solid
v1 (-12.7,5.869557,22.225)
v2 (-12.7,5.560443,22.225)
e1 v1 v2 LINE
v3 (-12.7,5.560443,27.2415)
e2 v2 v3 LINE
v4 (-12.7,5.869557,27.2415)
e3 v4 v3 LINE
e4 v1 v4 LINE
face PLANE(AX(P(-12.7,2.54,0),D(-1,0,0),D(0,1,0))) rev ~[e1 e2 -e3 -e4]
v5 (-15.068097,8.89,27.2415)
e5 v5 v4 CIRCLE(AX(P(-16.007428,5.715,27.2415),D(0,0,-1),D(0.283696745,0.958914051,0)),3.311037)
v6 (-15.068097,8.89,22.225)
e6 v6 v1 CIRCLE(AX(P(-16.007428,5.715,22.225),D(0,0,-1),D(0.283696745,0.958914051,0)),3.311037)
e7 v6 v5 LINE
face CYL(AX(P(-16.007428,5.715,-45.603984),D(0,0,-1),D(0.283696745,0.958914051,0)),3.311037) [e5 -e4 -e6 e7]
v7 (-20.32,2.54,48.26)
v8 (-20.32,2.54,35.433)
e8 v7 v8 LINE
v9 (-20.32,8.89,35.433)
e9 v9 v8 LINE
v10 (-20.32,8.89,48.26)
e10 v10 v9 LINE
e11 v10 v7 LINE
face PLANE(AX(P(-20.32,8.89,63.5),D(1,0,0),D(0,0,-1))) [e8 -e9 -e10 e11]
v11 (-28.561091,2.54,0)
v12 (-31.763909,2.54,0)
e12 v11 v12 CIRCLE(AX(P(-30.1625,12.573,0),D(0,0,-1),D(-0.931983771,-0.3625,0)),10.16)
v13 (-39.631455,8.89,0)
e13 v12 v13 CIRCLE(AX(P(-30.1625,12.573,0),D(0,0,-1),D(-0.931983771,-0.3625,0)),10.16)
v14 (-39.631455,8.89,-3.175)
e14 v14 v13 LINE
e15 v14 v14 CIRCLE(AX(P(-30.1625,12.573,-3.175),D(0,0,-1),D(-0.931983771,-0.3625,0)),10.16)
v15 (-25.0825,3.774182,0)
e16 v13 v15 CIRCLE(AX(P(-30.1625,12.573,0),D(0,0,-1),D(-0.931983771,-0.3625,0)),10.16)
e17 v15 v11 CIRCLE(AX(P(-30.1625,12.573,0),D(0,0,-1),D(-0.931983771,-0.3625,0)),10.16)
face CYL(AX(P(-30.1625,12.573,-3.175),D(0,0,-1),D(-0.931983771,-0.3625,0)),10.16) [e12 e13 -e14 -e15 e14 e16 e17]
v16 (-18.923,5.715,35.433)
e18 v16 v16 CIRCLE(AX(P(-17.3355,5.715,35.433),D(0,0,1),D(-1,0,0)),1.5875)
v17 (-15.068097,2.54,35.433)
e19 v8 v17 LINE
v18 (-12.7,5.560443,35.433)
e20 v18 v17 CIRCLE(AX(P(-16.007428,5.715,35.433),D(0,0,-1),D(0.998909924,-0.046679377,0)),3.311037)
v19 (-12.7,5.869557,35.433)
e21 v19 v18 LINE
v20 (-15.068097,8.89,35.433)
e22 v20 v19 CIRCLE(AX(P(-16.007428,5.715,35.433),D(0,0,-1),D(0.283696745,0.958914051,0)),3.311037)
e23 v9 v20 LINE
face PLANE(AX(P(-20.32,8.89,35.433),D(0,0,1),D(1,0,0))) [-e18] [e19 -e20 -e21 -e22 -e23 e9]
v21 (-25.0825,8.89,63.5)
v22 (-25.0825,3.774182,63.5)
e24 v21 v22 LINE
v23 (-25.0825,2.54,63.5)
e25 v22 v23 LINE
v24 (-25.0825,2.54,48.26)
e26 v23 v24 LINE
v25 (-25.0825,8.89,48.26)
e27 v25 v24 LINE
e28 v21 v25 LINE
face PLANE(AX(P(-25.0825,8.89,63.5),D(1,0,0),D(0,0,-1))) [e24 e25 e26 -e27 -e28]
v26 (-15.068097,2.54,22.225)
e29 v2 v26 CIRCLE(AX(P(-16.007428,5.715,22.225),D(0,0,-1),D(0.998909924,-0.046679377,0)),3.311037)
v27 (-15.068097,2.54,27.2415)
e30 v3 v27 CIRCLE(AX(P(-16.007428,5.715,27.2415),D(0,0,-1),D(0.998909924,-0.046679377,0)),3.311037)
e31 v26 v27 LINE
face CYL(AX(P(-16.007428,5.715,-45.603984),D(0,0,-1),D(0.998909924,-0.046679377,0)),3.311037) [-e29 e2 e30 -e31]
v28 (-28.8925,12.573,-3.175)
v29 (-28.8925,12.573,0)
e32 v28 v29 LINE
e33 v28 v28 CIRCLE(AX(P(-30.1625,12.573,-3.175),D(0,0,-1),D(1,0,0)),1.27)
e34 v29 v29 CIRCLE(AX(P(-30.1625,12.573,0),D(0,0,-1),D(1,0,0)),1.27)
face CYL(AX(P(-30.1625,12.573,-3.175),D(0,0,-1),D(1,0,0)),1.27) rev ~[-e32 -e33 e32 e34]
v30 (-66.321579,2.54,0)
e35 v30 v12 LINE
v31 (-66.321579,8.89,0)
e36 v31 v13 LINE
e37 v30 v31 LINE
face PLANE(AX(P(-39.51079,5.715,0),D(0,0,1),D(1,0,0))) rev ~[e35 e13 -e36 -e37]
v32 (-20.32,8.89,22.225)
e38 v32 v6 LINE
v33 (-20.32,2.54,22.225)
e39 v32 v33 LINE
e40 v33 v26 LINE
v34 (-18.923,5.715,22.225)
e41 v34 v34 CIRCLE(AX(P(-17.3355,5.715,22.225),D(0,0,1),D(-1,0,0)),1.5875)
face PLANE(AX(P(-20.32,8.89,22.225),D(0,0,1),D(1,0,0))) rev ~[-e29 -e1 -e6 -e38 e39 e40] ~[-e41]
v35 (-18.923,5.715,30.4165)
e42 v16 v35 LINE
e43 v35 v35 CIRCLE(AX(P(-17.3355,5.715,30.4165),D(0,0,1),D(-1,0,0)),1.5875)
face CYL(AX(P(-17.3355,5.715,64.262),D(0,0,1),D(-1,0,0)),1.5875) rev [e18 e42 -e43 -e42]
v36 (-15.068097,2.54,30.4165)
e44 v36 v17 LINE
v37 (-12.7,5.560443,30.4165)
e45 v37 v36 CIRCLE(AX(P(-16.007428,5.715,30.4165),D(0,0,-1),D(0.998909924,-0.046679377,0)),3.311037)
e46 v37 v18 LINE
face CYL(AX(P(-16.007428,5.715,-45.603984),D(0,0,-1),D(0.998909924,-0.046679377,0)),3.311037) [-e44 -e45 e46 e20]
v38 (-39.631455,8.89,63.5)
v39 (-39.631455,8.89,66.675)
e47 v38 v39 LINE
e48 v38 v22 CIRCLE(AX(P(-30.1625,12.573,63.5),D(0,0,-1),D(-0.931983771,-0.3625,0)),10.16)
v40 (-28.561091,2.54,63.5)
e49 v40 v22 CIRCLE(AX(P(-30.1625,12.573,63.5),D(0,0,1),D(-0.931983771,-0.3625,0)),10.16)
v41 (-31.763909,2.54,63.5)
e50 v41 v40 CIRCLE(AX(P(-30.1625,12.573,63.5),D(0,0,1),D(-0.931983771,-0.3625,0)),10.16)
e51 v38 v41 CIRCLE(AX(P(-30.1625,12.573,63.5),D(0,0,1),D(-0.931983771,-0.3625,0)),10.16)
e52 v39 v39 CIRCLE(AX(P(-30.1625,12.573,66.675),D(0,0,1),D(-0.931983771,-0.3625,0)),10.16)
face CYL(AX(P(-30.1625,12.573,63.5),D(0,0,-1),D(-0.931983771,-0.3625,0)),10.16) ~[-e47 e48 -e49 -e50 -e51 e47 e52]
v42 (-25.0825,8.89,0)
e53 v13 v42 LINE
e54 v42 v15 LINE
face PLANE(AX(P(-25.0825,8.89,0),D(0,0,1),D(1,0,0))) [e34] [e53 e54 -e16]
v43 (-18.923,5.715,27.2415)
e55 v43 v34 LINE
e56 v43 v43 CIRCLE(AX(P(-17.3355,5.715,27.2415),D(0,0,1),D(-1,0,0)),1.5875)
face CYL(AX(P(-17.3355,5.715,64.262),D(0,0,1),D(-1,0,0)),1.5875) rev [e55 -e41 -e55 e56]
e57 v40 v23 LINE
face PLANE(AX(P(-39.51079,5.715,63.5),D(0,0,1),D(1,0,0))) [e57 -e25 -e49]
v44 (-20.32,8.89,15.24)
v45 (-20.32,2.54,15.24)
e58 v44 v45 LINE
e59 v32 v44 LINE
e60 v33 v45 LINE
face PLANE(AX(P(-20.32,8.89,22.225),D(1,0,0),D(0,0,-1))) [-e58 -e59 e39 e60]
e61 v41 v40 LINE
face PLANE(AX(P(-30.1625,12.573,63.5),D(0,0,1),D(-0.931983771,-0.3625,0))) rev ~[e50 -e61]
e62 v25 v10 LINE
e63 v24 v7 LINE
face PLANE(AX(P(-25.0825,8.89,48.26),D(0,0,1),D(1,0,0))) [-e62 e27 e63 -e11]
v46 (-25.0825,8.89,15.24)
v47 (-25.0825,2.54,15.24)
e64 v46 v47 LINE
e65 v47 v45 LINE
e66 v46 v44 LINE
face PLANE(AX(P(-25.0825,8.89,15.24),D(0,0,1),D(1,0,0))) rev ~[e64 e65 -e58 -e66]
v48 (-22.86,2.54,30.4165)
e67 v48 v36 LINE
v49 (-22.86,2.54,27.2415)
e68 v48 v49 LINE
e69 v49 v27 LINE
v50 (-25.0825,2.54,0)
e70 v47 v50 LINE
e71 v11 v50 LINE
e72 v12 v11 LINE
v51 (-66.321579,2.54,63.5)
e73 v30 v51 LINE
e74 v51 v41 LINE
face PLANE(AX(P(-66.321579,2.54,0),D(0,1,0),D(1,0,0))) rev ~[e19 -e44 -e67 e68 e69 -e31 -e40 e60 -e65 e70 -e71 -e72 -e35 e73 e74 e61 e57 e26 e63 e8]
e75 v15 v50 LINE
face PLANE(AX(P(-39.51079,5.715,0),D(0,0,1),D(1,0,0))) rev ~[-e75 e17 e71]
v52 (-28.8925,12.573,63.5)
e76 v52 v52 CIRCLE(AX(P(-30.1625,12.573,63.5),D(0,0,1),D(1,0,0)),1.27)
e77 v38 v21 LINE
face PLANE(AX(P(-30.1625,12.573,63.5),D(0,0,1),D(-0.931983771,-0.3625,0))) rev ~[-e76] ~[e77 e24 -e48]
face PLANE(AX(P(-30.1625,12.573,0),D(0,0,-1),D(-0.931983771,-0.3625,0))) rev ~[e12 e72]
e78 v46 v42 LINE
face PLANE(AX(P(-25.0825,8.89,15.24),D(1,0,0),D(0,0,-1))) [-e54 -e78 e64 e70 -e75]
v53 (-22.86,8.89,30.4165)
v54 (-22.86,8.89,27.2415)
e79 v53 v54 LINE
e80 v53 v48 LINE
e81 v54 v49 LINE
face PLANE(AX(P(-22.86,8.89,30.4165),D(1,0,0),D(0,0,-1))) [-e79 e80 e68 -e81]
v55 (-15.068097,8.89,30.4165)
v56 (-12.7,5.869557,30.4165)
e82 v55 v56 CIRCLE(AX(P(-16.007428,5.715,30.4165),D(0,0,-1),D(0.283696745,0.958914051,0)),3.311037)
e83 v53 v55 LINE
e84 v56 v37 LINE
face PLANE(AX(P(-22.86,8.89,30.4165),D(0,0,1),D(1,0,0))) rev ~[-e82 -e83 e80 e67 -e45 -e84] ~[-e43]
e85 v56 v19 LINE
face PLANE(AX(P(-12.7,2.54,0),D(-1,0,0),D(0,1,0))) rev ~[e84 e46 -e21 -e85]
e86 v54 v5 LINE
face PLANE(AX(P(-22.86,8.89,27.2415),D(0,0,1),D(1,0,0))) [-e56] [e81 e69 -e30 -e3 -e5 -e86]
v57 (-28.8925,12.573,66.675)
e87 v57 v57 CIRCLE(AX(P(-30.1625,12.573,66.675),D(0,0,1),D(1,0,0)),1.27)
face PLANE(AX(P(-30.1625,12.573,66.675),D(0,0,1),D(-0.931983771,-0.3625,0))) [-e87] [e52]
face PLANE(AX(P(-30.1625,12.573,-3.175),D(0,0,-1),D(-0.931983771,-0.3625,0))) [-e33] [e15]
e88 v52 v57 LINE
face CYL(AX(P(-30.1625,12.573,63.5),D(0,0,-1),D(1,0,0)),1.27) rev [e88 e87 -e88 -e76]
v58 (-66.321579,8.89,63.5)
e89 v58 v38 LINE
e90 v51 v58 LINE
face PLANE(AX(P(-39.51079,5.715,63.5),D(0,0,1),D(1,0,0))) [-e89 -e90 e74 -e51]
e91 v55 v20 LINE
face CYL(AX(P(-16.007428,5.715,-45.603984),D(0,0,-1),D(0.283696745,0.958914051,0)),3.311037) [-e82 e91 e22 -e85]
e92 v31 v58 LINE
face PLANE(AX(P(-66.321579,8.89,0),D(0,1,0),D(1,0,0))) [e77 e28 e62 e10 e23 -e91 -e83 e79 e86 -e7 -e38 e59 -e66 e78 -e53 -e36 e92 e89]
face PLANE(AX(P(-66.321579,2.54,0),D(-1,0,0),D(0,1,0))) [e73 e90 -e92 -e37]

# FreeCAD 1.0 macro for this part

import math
import FreeCAD as App
import Part
import Sketcher
from FreeCAD import Vector
Q = App.Units.Quantity

doc = App.newDocument("Part")
body = doc.addObject("PartDesign::Body", "Body")

# Sketch on XY plane
sketch1 = body.newObject("Sketcher::SketchObject", "Sketch")
sketch1.AttachmentSupport = (doc.getObject("XY_Plane"), [""])
sketch1.MapMode = "FlatFace"
sketch1.addGeometry(Part.LineSegment(Vector(-66.321579, 8.89, 0), Vector(-66.321579, 2.54, 0)), False)
sketch1.addGeometry(Part.LineSegment(Vector(-66.321579, 2.54, 0), Vector(-12.7, 2.54, 0)), False)
sketch1.addGeometry(Part.LineSegment(Vector(-12.7, 2.54, 0), Vector(-12.7, 8.89, 0)), False)
sketch1.addGeometry(Part.LineSegment(Vector(-12.7, 8.89, 0), Vector(-66.321579, 8.89, 0)), False)
sketch1.addConstraint(Sketcher.Constraint("Coincident", 0, 2, 1, 1))
sketch1.addConstraint(Sketcher.Constraint("Coincident", 1, 2, 2, 1))
sketch1.addConstraint(Sketcher.Constraint("Coincident", 2, 2, 3, 1))
sketch1.addConstraint(Sketcher.Constraint("Coincident", 3, 2, 0, 1))
sketch1.addConstraint(Sketcher.Constraint("Vertical", 0))
sketch1.addConstraint(Sketcher.Constraint("Horizontal", 1))
sketch1.addConstraint(Sketcher.Constraint("Vertical", 2))
sketch1.addConstraint(Sketcher.Constraint("Horizontal", 3))
sketch1.addConstraint(Sketcher.Constraint("DistanceY", 0, 2, 0, 1, Q("0.25 in")))
sketch1.addConstraint(Sketcher.Constraint("DistanceY", -1, 1, 0, 2, Q("0.1 in")))
sketch1.addConstraint(Sketcher.Constraint("DistanceX", 1, 2, -1, 1, Q("0.5 in")))
sketch1.addConstraint(Sketcher.Constraint("DistanceX", 1, 1, 1, 2, 53.621579))
pad1 = body.newObject("PartDesign::Pad", "Pad")
pad1.Profile = sketch1
pad1.Length = Q("2.5 in")

# Sketch on XY plane
sketch2 = body.newObject("Sketcher::SketchObject", "Sketch001")
sketch2.AttachmentSupport = (doc.getObject("XY_Plane"), [""])
sketch2.MapMode = "FlatFace"
sketch2.AttachmentOffset = App.Placement(Vector(0, 0, 2.5 * 25.4), App.Rotation())
sketch2.addGeometry(Part.Circle(Vector(-17.3355, 5.715, 0), Vector(0, 0, 1), 1.5875), False)
sketch2.addConstraint(Sketcher.Constraint("Diameter", 0, Q("0.125 in")))
sketch2.addConstraint(Sketcher.Constraint("DistanceY", -1, 1, 0, 3, Q("0.225 in")))
sketch2.addConstraint(Sketcher.Constraint("DistanceX", 0, 3, -1, 1, Q("0.6825 in")))
pocket1 = body.newObject("PartDesign::Pocket", "Pocket")
pocket1.Profile = sketch2
pocket1.Type = "ThroughAll"
pocket1.Midplane = True

# Sketch on XY plane
sketch3 = body.newObject("Sketcher::SketchObject", "Sketch002")
sketch3.AttachmentSupport = (doc.getObject("XY_Plane"), [""])
sketch3.MapMode = "FlatFace"
sketch3.AttachmentOffset = App.Placement(Vector(0, 0, 2.5 * 25.4), App.Rotation())
sketch3.addGeometry(Part.Circle(Vector(-30.1625, 12.573, 0), Vector(0, 0, 1), 10.16), False)
sketch3.addGeometry(Part.Circle(Vector(-30.1625, 12.573, 0), Vector(0, 0, 1), 1.27), False)
sketch3.addConstraint(Sketcher.Constraint("Coincident", 1, 3, 0, 3))
sketch3.addConstraint(Sketcher.Constraint("Diameter", 0, Q("0.8 in")))
sketch3.addConstraint(Sketcher.Constraint("Diameter", 1, Q("0.1 in")))
sketch3.addConstraint(Sketcher.Constraint("DistanceX", 0, 3, -1, 1, Q("1.1875 in")))
sketch3.addConstraint(Sketcher.Constraint("DistanceY", -1, 1, 0, 3, Q("0.495 in")))
pad2 = body.newObject("PartDesign::Pad", "Pad001")
pad2.Profile = sketch3
pad2.Length = Q("0.125 in")

# Sketch on XY plane
sketch4 = body.newObject("Sketcher::SketchObject", "Sketch003")
sketch4.AttachmentSupport = (doc.getObject("XY_Plane"), [""])
sketch4.MapMode = "FlatFace"
sketch4.AttachmentOffset = App.Placement(Vector(0, 0, -0.125 * 25.4), App.Rotation())
sketch4.addGeometry(Part.Circle(Vector(-30.1625, 12.573, 0), Vector(0, 0, 1), 10.16), False)
sketch4.addGeometry(Part.Circle(Vector(-30.1625, 12.573, 0), Vector(0, 0, 1), 1.27), False)
sketch4.addConstraint(Sketcher.Constraint("Coincident", 1, 3, 0, 3))
sketch4.addConstraint(Sketcher.Constraint("Diameter", 0, Q("0.8 in")))
sketch4.addConstraint(Sketcher.Constraint("Diameter", 1, Q("0.1 in")))
sketch4.addConstraint(Sketcher.Constraint("DistanceX", 0, 3, -1, 1, Q("1.1875 in")))
sketch4.addConstraint(Sketcher.Constraint("DistanceY", -1, 1, 0, 3, Q("0.495 in")))
pad3 = body.newObject("PartDesign::Pad", "Pad002")
pad3.Profile = sketch4
pad3.Length = Q("0.125 in")

# Sketch on XZ plane
sketch5 = body.newObject("Sketcher::SketchObject", "Sketch004")
sketch5.AttachmentSupport = (doc.getObject("XZ_Plane"), [""])
sketch5.MapMode = "FlatFace"
sketch5.AttachmentOffset = App.Placement(Vector(0, 0, -0.35 * 25.4), App.Rotation())
sketch5.addGeometry(Part.LineSegment(Vector(-20.32, 0, 0), Vector(-20.32, 22.225, 0)), False)
sketch5.addGeometry(Part.LineSegment(Vector(-20.32, 22.225, 0), Vector(-12.7, 22.225, 0)), False)
sketch5.addGeometry(Part.LineSegment(Vector(-12.7, 22.225, 0), Vector(-12.7, 0, 0)), False)
sketch5.addGeometry(Part.LineSegment(Vector(-12.7, 0, 0), Vector(-20.32, 0, 0)), False)
sketch5.addGeometry(Part.LineSegment(Vector(-20.32, 35.433, 0), Vector(-20.32, 63.5, 0)), False)
sketch5.addGeometry(Part.LineSegment(Vector(-20.32, 63.5, 0), Vector(-12.7, 63.5, 0)), False)
sketch5.addGeometry(Part.LineSegment(Vector(-12.7, 63.5, 0), Vector(-12.7, 35.433, 0)), False)
sketch5.addGeometry(Part.LineSegment(Vector(-12.7, 35.433, 0), Vector(-20.32, 35.433, 0)), False)
sketch5.addGeometry(Part.LineSegment(Vector(-22.86, 27.2415, 0), Vector(-22.86, 30.4165, 0)), False)
sketch5.addGeometry(Part.LineSegment(Vector(-22.86, 30.4165, 0), Vector(-12.7, 30.4165, 0)), False)
sketch5.addGeometry(Part.LineSegment(Vector(-12.7, 30.4165, 0), Vector(-12.7, 27.2415, 0)), False)
sketch5.addGeometry(Part.LineSegment(Vector(-12.7, 27.2415, 0), Vector(-22.86, 27.2415, 0)), False)
sketch5.addConstraint(Sketcher.Constraint("Coincident", 0, 2, 1, 1))
sketch5.addConstraint(Sketcher.Constraint("Coincident", 1, 2, 2, 1))
sketch5.addConstraint(Sketcher.Constraint("Coincident", 2, 2, 3, 1))
sketch5.addConstraint(Sketcher.Constraint("Coincident", 3, 2, 0, 1))
sketch5.addConstraint(Sketcher.Constraint("Coincident", 4, 2, 5, 1))
sketch5.addConstraint(Sketcher.Constraint("Coincident", 5, 2, 6, 1))
sketch5.addConstraint(Sketcher.Constraint("Coincident", 6, 2, 7, 1))
sketch5.addConstraint(Sketcher.Constraint("Coincident", 7, 2, 4, 1))
sketch5.addConstraint(Sketcher.Constraint("Coincident", 8, 2, 9, 1))
sketch5.addConstraint(Sketcher.Constraint("Coincident", 9, 2, 10, 1))
sketch5.addConstraint(Sketcher.Constraint("Coincident", 10, 2, 11, 1))
sketch5.addConstraint(Sketcher.Constraint("Coincident", 11, 2, 8, 1))
sketch5.addConstraint(Sketcher.Constraint("Vertical", 0))
sketch5.addConstraint(Sketcher.Constraint("Horizontal", 1))
sketch5.addConstraint(Sketcher.Constraint("Vertical", 2))
sketch5.addConstraint(Sketcher.Constraint("Horizontal", 3))
sketch5.addConstraint(Sketcher.Constraint("Vertical", 4))
sketch5.addConstraint(Sketcher.Constraint("Horizontal", 5))
sketch5.addConstraint(Sketcher.Constraint("Vertical", 6))
sketch5.addConstraint(Sketcher.Constraint("Horizontal", 7))
sketch5.addConstraint(Sketcher.Constraint("Vertical", 8))
sketch5.addConstraint(Sketcher.Constraint("Horizontal", 9))
sketch5.addConstraint(Sketcher.Constraint("Vertical", 10))
sketch5.addConstraint(Sketcher.Constraint("Horizontal", 11))
sketch5.addConstraint(Sketcher.Constraint("PointOnObject", 2, 2, -1))
sketch5.addConstraint(Sketcher.Constraint("Vertical", 3, 2, 4, 2))
sketch5.addConstraint(Sketcher.Constraint("Vertical", 2, 2, 5, 2))
sketch5.addConstraint(Sketcher.Constraint("Vertical", 6, 2, 9, 2))
sketch5.addConstraint(Sketcher.Constraint("DistanceX", 1, 1, 1, 2, Q("0.3 in")))
sketch5.addConstraint(Sketcher.Constraint("DistanceX", 9, 1, 9, 2, Q("0.4 in")))
sketch5.addConstraint(Sketcher.Constraint("DistanceX", 0, 2, -1, 1, Q("0.8 in")))
sketch5.addConstraint(Sketcher.Constraint("DistanceY", -1, 1, 4, 2, Q("2.5 in")))
sketch5.addConstraint(Sketcher.Constraint("DistanceY", 0, 1, 0, 2, Q("0.875 in")))
sketch5.addConstraint(Sketcher.Constraint("DistanceY", 4, 1, 4, 2, Q("1.105 in")))
sketch5.addConstraint(Sketcher.Constraint("DistanceY", 8, 1, 8, 2, Q("0.125 in")))
sketch5.addConstraint(Sketcher.Constraint("DistanceY", -1, 1, 8, 2, Q("1.1975 in")))
pocket2 = body.newObject("PartDesign::Pocket", "Pocket001")
pocket2.Profile = sketch5
pocket2.Type = "ThroughAll"
pocket2.Reversed = True

# Sketch on XY plane
sketch6 = body.newObject("Sketcher::SketchObject", "Sketch005")
sketch6.AttachmentSupport = (doc.getObject("XY_Plane"), [""])
sketch6.MapMode = "FlatFace"
sketch6.AttachmentOffset = App.Placement(Vector(0, 0, 1.395 * 25.4), App.Rotation())
sketch6.addGeometry(Part.LineSegment(Vector(-12.7, 8.89, 0), Vector(-15.068097, 8.89, 0)), False)
sketch6.addGeometry(Part.ArcOfCircle(Part.Circle(Vector(-16.007428, 5.715, 0), Vector(0, 0, 1), 3.311037), math.radians(2.675504), math.radians(73.519038)), False)
sketch6.addGeometry(Part.LineSegment(Vector(-12.7, 5.869557, 0), Vector(-12.7, 8.89, 0)), False)
sketch6.addGeometry(Part.LineSegment(Vector(-12.7, 2.54, 0), Vector(-12.7, 5.560443, 0)), False)
sketch6.addGeometry(Part.ArcOfCircle(Part.Circle(Vector(-16.007428, 5.715, 0), Vector(0, 0, 1), 3.311037), math.radians(-73.519038), math.radians(-2.675504)), False)
sketch6.addGeometry(Part.LineSegment(Vector(-15.068097, 2.54, 0), Vector(-12.7, 2.54, 0)), False)
sketch6.addConstraint(Sketcher.Constraint("Coincident", 0, 2, 1, 2))
sketch6.addConstraint(Sketcher.Constraint("Coincident", 1, 1, 2, 1))
sketch6.addConstraint(Sketcher.Constraint("Coincident", 2, 2, 0, 1))
sketch6.addConstraint(Sketcher.Constraint("Coincident", 3, 2, 4, 2))
sketch6.addConstraint(Sketcher.Constraint("Coincident", 4, 1, 5, 1))
sketch6.addConstraint(Sketcher.Constraint("Coincident", 5, 2, 3, 1))
sketch6.addConstraint(Sketcher.Constraint("Horizontal", 0))
sketch6.addConstraint(Sketcher.Constraint("Vertical", 2))
sketch6.addConstraint(Sketcher.Constraint("Vertical", 3))
sketch6.addConstraint(Sketcher.Constraint("Horizontal", 5))
sketch6.addConstraint(Sketcher.Constraint("Coincident", 4, 3, 1, 3))
sketch6.addConstraint(Sketcher.Constraint("Equal", 1, 4))
sketch6.addConstraint(Sketcher.Constraint("Vertical", 2, 2, 3, 2))
sketch6.addConstraint(Sketcher.Constraint("Vertical", 0, 2, 4, 1))
sketch6.addConstraint(Sketcher.Constraint("DistanceX", 1, 1, -1, 1, Q("0.5 in")))
sketch6.addConstraint(Sketcher.Constraint("DistanceY", -1, 1, 4, 1, Q("0.1 in")))
sketch6.addConstraint(Sketcher.Constraint("DistanceY", -1, 1, 0, 2, Q("0.35 in")))
sketch6.addConstraint(Sketcher.Constraint("Radius", 1, 3.311037))
sketch6.addConstraint(Sketcher.Constraint("DistanceX", 0, 2, 0, 1, 2.368097))
pocket3 = body.newObject("PartDesign::Pocket", "Pocket002")
pocket3.Profile = sketch6
pocket3.Type = "ThroughAll"
pocket3.Midplane = True

# Sketch on XZ plane
sketch7 = body.newObject("Sketcher::SketchObject", "Sketch006")
sketch7.AttachmentSupport = (doc.getObject("XZ_Plane"), [""])
sketch7.MapMode = "FlatFace"
sketch7.AttachmentOffset = App.Placement(Vector(0, 0, -0.35 * 25.4), App.Rotation())
sketch7.addGeometry(Part.LineSegment(Vector(-25.0825, 0, 0), Vector(-25.0825, 15.24, 0)), False)
sketch7.addGeometry(Part.LineSegment(Vector(-25.0825, 15.24, 0), Vector(-20.32, 15.24, 0)), False)
sketch7.addGeometry(Part.LineSegment(Vector(-20.32, 15.24, 0), Vector(-20.32, 0, 0)), False)
sketch7.addGeometry(Part.LineSegment(Vector(-20.32, 0, 0), Vector(-25.0825, 0, 0)), False)
sketch7.addGeometry(Part.LineSegment(Vector(-25.0825, 48.26, 0), Vector(-25.0825, 63.5, 0)), False)
sketch7.addGeometry(Part.LineSegment(Vector(-25.0825, 63.5, 0), Vector(-20.32, 63.5, 0)), False)
sketch7.addGeometry(Part.LineSegment(Vector(-20.32, 63.5, 0), Vector(-20.32, 48.26, 0)), False)
sketch7.addGeometry(Part.LineSegment(Vector(-20.32, 48.26, 0), Vector(-25.0825, 48.26, 0)), False)
sketch7.addConstraint(Sketcher.Constraint("Coincident", 0, 2, 1, 1))
sketch7.addConstraint(Sketcher.Constraint("Coincident", 1, 2, 2, 1))
sketch7.addConstraint(Sketcher.Constraint("Coincident", 2, 2, 3, 1))
sketch7.addConstraint(Sketcher.Constraint("Coincident", 3, 2, 0, 1))
sketch7.addConstraint(Sketcher.Constraint("Coincident", 4, 2, 5, 1))
sketch7.addConstraint(Sketcher.Constraint("Coincident", 5, 2, 6, 1))
sketch7.addConstraint(Sketcher.Constraint("Coincident", 6, 2, 7, 1))
sketch7.addConstraint(Sketcher.Constraint("Coincident", 7, 2, 4, 1))
sketch7.addConstraint(Sketcher.Constraint("Vertical", 0))
sketch7.addConstraint(Sketcher.Constraint("Horizontal", 1))
sketch7.addConstraint(Sketcher.Constraint("Vertical", 2))
sketch7.addConstraint(Sketcher.Constraint("Horizontal", 3))
sketch7.addConstraint(Sketcher.Constraint("Vertical", 4))
sketch7.addConstraint(Sketcher.Constraint("Horizontal", 5))
sketch7.addConstraint(Sketcher.Constraint("Vertical", 6))
sketch7.addConstraint(Sketcher.Constraint("Horizontal", 7))
sketch7.addConstraint(Sketcher.Constraint("PointOnObject", 2, 2, -1))
sketch7.addConstraint(Sketcher.Constraint("Vertical", 3, 2, 4, 2))
sketch7.addConstraint(Sketcher.Constraint("Vertical", 2, 2, 5, 2))
sketch7.addConstraint(Sketcher.Constraint("Equal", 2, 4))
sketch7.addConstraint(Sketcher.Constraint("DistanceY", 0, 1, 0, 2, Q("0.6 in")))
sketch7.addConstraint(Sketcher.Constraint("DistanceX", 1, 2, -1, 1, Q("0.8 in")))
sketch7.addConstraint(Sketcher.Constraint("DistanceY", -1, 1, 4, 2, Q("2.5 in")))
sketch7.addConstraint(Sketcher.Constraint("DistanceX", 1, 1, 1, 2, Q("0.1875 in")))
pocket4 = body.newObject("PartDesign::Pocket", "Pocket003")
pocket4.Profile = sketch7
pocket4.Type = "ThroughAll"
pocket4.Reversed = True

doc.recompute()
